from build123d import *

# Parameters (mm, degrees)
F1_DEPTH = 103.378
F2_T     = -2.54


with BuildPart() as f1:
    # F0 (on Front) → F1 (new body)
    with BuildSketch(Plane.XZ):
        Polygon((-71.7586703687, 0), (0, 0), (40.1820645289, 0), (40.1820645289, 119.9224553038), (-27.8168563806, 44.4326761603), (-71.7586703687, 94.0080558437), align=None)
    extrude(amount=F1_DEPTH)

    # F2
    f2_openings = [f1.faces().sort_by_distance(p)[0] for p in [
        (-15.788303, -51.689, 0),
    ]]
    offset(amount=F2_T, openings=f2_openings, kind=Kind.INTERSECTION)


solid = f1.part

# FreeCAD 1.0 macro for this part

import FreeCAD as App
import Part
import Sketcher

V = App.Vector
Q = App.Units.Quantity


def faces_at(feature, points):
    """Names of the faces that lie closest to the given points."""
    faces = feature.Shape.Faces
    near = lambda p: min(range(len(faces)), key=lambda i: faces[i].distToShape(Part.Vertex(*p))[0])
    return sorted({f"Face{near(p) + 1}" for p in points})


def add_polygon(sketch, points):
    """Adds a closed chain of lines whose ends are joined by coincident constraints."""
    first, n = sketch.GeometryCount, len(points)
    for a, b in zip(points, points[1:] + points[:1]):
        sketch.addGeometry(Part.LineSegment(App.Vector(*a, 0), App.Vector(*b, 0)), False)
    for i in range(n):
        sketch.addConstraint(Sketcher.Constraint("Coincident", first + i, 2, first + (i + 1) % n, 1))

doc = App.newDocument("Part")
body = doc.addObject("PartDesign::Body", "Body")

# Sketch on XZ plane
sketch1 = body.newObject("Sketcher::SketchObject", "Sketch")
sketch1.AttachmentSupport = (doc.getObject("XZ_Plane"), [""])
sketch1.MapMode = "FlatFace"
add_polygon(sketch1, [(-71.75867, 0), (40.182065, 0), (40.182065, 119.922455), (-27.816856, 44.432676), (-71.75867, 94.008056)])  # lines 0-4
sketch1.addConstraint([
    Sketcher.Constraint("Horizontal", 0),
    Sketcher.Constraint("Vertical", 1),
    Sketcher.Constraint("Vertical", 4),
    Sketcher.Constraint("PointOnObject", 0, 2, -1),
    Sketcher.Constraint("Distance", 2, Q("4 in")),
    Sketcher.Constraint("DistanceY", 3, 2, 1, 2, Q("25.914399 mm")),
    Sketcher.Constraint("Distance", 3, Q("66.246519 mm")),
    Sketcher.Constraint("DistanceX", 0, 1, 0, 2, Q("111.940735 mm")),
    Sketcher.Constraint("DistanceY", 1, 1, 1, 2, Q("119.922455 mm")),
    Sketcher.Constraint("DistanceX", 3, 2, -1, 1, Q("71.75867 mm")),
])
pad1 = body.newObject("PartDesign::Pad", "Pad")
pad1.Profile = sketch1
pad1.Length = Q("4.07 in")
doc.recompute()

thickness = body.newObject("PartDesign::Thickness", "Thickness")
thickness.Base = (pad1, faces_at(pad1, [(-15.788, -51.689, 0)]))
thickness.Value = Q("0.1 in")
thickness.Reversed = True
thickness.Join = "Intersection"

doc.recompute()
